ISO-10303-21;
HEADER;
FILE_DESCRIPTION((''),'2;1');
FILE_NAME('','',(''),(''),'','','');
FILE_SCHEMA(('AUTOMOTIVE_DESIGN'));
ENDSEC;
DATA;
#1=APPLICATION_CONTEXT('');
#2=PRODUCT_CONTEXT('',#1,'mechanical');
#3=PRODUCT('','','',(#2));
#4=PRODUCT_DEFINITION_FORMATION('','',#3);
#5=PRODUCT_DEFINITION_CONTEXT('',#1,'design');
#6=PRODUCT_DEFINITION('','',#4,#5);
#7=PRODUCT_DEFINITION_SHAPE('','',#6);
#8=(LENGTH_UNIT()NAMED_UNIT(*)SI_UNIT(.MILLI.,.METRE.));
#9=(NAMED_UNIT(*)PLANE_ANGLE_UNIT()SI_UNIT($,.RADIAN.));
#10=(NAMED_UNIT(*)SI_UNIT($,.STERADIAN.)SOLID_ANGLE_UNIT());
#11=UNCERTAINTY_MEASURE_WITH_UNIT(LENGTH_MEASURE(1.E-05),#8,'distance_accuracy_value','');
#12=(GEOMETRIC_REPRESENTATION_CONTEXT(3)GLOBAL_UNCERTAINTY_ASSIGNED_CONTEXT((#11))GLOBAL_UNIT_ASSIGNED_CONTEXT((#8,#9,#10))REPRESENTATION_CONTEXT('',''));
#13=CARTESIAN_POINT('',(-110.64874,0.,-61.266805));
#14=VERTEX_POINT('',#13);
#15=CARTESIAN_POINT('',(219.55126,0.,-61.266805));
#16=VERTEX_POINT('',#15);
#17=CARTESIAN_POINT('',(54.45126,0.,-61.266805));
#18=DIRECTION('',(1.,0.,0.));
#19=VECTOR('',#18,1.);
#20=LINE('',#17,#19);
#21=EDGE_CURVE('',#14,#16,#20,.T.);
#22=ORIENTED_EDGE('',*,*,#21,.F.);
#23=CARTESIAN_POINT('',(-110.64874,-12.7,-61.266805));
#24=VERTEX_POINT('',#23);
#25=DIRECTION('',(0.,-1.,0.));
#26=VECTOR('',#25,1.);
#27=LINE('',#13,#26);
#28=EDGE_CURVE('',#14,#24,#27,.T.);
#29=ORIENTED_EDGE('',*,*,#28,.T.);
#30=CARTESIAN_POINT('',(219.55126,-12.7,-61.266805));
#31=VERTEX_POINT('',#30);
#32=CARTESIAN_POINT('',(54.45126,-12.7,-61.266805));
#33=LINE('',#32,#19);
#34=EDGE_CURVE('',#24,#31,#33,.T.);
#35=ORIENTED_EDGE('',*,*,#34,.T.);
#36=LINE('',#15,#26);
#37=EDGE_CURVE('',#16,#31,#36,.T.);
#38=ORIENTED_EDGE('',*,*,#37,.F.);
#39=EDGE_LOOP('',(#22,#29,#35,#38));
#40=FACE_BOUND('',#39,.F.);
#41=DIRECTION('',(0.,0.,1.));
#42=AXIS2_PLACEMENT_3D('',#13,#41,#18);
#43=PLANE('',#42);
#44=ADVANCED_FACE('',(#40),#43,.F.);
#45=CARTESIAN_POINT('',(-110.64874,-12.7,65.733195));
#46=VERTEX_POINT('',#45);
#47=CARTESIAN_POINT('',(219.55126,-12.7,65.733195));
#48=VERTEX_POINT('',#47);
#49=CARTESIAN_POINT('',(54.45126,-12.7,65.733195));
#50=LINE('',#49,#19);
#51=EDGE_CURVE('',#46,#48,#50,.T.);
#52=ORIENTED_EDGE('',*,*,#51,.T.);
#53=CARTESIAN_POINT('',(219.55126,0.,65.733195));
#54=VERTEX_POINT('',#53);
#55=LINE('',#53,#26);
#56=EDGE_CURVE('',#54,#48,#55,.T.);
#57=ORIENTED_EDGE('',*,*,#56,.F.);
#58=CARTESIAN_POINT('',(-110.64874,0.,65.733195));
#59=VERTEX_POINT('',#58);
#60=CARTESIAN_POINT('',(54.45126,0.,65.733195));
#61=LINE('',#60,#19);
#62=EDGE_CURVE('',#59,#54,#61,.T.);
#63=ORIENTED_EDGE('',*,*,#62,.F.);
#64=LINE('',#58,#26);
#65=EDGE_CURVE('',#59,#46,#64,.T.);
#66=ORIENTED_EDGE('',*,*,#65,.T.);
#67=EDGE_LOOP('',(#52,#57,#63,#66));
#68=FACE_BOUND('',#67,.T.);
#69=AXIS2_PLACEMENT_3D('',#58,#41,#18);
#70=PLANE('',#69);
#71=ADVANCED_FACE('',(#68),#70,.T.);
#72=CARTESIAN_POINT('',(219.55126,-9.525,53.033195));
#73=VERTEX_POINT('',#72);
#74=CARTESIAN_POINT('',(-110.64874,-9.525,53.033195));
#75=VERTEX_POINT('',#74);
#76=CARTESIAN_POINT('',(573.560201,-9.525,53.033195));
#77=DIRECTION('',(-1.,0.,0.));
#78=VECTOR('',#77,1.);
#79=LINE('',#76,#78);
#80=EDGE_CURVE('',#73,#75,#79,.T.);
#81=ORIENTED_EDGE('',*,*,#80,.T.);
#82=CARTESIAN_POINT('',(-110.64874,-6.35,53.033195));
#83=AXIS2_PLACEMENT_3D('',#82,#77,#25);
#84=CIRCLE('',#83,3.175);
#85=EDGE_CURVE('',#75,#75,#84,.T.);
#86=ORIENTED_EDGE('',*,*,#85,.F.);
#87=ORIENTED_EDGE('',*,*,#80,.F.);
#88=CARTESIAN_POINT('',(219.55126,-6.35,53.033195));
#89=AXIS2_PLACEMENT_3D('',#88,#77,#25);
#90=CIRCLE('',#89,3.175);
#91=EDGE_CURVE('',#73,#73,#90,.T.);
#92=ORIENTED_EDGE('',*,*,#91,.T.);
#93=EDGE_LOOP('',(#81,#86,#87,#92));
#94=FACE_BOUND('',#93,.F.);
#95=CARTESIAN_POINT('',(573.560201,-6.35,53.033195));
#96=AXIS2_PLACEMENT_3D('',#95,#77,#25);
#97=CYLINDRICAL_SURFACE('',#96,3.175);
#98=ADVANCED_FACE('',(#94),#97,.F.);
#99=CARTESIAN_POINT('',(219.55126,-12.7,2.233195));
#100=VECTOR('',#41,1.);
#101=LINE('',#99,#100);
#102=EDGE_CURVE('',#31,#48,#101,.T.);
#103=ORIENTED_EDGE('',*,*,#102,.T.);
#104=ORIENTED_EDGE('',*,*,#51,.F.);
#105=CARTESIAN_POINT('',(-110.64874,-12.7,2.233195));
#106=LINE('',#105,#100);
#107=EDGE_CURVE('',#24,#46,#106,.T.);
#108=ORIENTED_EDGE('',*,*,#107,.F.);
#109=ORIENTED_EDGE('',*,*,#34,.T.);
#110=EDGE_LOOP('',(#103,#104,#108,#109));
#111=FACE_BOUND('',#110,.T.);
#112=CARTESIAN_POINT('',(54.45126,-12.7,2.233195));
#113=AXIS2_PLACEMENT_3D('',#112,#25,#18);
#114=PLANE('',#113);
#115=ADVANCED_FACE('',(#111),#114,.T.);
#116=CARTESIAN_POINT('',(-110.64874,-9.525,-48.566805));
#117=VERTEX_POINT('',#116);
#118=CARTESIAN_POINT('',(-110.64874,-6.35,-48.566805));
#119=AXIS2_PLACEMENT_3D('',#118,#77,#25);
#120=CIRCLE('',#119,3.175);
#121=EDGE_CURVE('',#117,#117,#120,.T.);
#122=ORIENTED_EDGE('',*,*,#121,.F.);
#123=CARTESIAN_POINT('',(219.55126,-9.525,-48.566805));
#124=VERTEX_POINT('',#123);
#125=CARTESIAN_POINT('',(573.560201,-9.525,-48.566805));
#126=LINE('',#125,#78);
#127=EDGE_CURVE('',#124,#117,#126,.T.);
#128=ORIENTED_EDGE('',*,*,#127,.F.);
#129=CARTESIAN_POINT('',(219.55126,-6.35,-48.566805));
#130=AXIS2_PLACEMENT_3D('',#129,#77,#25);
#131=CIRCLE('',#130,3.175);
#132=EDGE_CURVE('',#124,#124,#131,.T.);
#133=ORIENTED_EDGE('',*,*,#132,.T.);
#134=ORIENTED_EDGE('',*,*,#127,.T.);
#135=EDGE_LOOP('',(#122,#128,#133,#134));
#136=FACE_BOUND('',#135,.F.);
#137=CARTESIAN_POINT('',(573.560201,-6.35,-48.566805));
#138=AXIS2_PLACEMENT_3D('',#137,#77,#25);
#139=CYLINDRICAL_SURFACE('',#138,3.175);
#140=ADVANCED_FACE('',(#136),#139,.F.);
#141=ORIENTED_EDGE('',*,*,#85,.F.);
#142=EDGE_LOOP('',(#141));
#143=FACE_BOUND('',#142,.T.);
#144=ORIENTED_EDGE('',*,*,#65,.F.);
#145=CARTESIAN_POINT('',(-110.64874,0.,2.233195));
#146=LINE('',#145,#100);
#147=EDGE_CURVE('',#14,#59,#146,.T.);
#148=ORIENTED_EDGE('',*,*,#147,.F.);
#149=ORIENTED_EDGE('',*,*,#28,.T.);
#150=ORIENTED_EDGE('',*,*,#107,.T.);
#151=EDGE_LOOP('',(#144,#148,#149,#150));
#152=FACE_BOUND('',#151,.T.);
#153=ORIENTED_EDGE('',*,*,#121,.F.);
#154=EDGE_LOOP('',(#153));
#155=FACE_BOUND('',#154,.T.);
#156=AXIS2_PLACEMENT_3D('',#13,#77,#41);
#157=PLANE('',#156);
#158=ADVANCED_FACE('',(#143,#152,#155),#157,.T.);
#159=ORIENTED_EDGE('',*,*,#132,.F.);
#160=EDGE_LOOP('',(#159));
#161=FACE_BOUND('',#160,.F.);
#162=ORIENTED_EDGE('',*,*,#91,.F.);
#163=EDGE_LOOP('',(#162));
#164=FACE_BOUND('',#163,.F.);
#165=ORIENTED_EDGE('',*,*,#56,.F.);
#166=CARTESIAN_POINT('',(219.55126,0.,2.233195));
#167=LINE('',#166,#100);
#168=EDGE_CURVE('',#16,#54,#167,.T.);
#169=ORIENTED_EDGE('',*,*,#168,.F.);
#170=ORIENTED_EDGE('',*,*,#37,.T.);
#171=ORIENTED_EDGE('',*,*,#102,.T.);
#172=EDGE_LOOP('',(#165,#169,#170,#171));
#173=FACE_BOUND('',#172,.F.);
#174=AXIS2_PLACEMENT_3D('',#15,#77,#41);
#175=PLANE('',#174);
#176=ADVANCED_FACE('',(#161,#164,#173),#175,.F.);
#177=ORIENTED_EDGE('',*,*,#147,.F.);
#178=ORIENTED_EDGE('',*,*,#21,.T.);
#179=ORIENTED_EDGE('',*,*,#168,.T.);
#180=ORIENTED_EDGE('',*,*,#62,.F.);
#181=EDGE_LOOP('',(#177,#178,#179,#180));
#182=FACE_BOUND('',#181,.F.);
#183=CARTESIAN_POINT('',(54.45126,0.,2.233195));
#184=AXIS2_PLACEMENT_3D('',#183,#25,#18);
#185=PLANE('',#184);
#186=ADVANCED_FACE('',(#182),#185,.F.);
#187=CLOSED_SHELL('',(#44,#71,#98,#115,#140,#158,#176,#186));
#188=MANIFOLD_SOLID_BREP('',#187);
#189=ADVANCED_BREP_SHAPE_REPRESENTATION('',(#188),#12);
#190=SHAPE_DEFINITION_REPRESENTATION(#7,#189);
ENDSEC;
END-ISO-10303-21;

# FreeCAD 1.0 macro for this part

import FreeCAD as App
import Part
import Sketcher

V = App.Vector
Q = App.Units.Quantity

doc = App.newDocument("Part")
params = doc.addObject("Spreadsheet::Sheet", "Params")
for row, (alias, value) in enumerate([
    ("sketch1_width", "13 in"),
    ("sketch1_height", "5 in"),
    ("pad1_length", "0.5 in"),
    ("sketch2_diameter", "0.25 in"),
    ("hole_diameter", "0.25 in"),
], start=1):
    params.set(f"A{row}", alias)
    params.set(f"B{row}", "=" + value)
    params.setAlias(f"B{row}", alias)

body = doc.addObject("PartDesign::Body", "Body")

sketch1 = body.newObject("Sketcher::SketchObject", "Sketch")
sketch1.AttachmentSupport = (doc.getObject("XZ_Plane"), [""])
sketch1.MapMode = "FlatFace"
sketch1.addGeometry([
    Part.LineSegment(V(-111, 66, 0), V(-111, -61, 0)),
    Part.LineSegment(V(-111, -61, 0), V(220, -61, 0)),
    Part.LineSegment(V(220, -61, 0), V(220, 66, 0)),
    Part.LineSegment(V(220, 66, 0), V(-111, 66, 0)),
], False)
sketch1.addConstraint([
    Sketcher.Constraint("Coincident", 0, 2, 1, 1),
    Sketcher.Constraint("Coincident", 1, 2, 2, 1),
    Sketcher.Constraint("Coincident", 2, 2, 3, 1),
    Sketcher.Constraint("Coincident", 3, 2, 0, 1),
    Sketcher.Constraint("Vertical", 0),
    Sketcher.Constraint("Horizontal", 1),
    Sketcher.Constraint("Vertical", 2),
    Sketcher.Constraint("Horizontal", 3),
    Sketcher.Constraint("DistanceX", 1, 1, 1, 2, Q("13 in")),
    Sketcher.Constraint("DistanceY", 0, 2, 0, 1, Q("5 in")),
    Sketcher.Constraint("DistanceX", 0, 2, -1, 1, 110.64874),
    Sketcher.Constraint("DistanceY", 0, 2, -1, 1, 61.266805),
])
sketch1.setExpression("Constraints[8]", "Params.sketch1_width")
sketch1.setExpression("Constraints[9]", "Params.sketch1_height")
pad1 = body.newObject("PartDesign::Pad", "Pad")
pad1.Profile = sketch1
pad1.setExpression("Length", "Params.pad1_length")

sketch2 = body.newObject("Sketcher::SketchObject", "Sketch001")
sketch2.AttachmentSupport = (doc.getObject("YZ_Plane"), [""])
sketch2.MapMode = "FlatFace"
sketch2.AttachmentOffset = App.Placement(V(0, 0, 219.55126), App.Rotation())
sketch2.addGeometry([
    Part.Circle(V(-6.3, 53, 0), V(0, 0, 1), 3.2),
    Part.Circle(V(-6.3, -48.6, 0), V(0, 0, 1), 3.2),
], False)
sketch2.addConstraint([
    Sketcher.Constraint("Equal", 0, 1),
    Sketcher.Constraint("Vertical", 0, 3, 1, 3),
    Sketcher.Constraint("Diameter", 0, Q("0.25 in")),
    Sketcher.Constraint("DistanceY", 1, 3, 0, 3, Q("4 in")),
    Sketcher.Constraint("DistanceX", 0, 3, -1, 1, Q("0.25 in")),
    Sketcher.Constraint("DistanceY", -1, 1, 0, 3, 53.033195),
])
sketch2.setExpression("Constraints[2]", "Params.sketch2_diameter")
doc.recompute()
hole = body.newObject("PartDesign::Hole", "Hole")
hole.Profile = sketch2
hole.ThreadType = "None"
hole.setExpression("Diameter", "Params.hole_diameter")
hole.DepthType = "ThroughAll"

doc.recompute()
